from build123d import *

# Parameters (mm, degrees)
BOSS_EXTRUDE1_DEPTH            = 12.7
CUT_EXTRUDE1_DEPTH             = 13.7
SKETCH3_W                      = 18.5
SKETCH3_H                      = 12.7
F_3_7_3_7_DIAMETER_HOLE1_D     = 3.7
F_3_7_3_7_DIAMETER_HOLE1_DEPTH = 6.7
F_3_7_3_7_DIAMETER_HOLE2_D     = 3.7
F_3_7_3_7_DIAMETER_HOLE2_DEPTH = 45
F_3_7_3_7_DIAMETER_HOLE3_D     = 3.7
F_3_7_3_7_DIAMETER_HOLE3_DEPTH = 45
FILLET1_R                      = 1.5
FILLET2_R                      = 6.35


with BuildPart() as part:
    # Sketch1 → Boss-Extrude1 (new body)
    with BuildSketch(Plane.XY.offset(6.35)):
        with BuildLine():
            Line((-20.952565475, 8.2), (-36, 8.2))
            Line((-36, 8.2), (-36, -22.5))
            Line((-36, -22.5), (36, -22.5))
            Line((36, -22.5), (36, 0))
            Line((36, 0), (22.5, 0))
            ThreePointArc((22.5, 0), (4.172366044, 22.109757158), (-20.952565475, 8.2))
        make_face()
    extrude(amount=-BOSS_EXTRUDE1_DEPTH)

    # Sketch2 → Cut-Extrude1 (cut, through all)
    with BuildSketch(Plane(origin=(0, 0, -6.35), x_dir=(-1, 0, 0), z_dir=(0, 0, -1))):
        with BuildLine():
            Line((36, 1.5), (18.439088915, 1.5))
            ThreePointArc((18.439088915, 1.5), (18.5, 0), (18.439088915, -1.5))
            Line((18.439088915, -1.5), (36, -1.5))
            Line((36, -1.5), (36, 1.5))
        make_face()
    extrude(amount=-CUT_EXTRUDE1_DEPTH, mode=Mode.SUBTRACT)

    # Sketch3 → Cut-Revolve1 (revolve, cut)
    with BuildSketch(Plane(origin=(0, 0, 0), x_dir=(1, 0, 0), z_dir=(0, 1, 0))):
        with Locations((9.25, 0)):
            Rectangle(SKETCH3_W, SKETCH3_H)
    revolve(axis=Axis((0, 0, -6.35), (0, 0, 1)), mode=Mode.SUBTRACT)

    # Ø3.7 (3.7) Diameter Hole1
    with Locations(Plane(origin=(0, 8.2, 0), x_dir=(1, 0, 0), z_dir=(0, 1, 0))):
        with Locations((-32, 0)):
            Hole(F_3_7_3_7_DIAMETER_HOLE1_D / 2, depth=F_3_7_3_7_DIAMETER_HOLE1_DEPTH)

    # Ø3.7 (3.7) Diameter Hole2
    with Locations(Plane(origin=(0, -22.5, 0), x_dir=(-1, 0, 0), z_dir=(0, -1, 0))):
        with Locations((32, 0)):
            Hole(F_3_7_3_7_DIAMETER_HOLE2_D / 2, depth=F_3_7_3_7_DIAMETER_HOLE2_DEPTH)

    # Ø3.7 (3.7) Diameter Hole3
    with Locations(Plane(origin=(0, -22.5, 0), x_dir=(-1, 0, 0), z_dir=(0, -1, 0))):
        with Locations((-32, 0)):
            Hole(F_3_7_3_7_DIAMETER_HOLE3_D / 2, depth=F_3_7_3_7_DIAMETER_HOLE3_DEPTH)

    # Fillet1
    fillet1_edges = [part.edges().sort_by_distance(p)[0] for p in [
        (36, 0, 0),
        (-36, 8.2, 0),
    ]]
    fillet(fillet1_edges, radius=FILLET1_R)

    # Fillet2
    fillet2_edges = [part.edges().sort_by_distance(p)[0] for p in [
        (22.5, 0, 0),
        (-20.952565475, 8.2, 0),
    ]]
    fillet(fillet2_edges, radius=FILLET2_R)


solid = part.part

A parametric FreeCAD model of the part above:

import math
import FreeCAD as App
import Part
import Sketcher

V = App.Vector
Q = App.Units.Quantity


def edges_at(feature, points):
    """Names of the edges that pass closest to the given points."""
    edges = feature.Shape.Edges
    near = lambda p: min(range(len(edges)), key=lambda i: edges[i].distToShape(Part.Vertex(*p))[0])
    return sorted({f"Edge{near(p) + 1}" for p in points})


def add_polygon(sketch, points):
    """Adds a closed chain of lines whose ends are joined by coincident constraints."""
    first, n = sketch.GeometryCount, len(points)
    for a, b in zip(points, points[1:] + points[:1]):
        sketch.addGeometry(Part.LineSegment(App.Vector(*a, 0), App.Vector(*b, 0)), False)
    for i in range(n):
        sketch.addConstraint(Sketcher.Constraint("Coincident", first + i, 2, first + (i + 1) % n, 1))

doc = App.newDocument("Part")
params = doc.addObject("Spreadsheet::Sheet", "Params")
for row, (alias, value) in enumerate([
    ("sketch1_radius", "22.5 mm"),
    ("sketch1_width", "72 mm"),
    ("sketch1_width2", "13.5 mm"),
    ("sketch1_height", "30.7 mm"),
    ("sketch1_height2", "22.5 mm"),
    ("pad1_length", "12.7 mm"),
    ("sketch2_radius", "18.5 mm"),
    ("sketch2_height", "3 mm"),
    ("sketch3_width", "18.5 mm"),
    ("sketch3_height", "12.7 mm"),
    ("groove_angle", "360 deg"),
    ("sketch4_diameter", "3.7 mm"),
    ("hole_diameter", "3.7 mm"),
    ("hole_depth", "6.7 mm"),
    ("sketch5_diameter", "3.7 mm"),
    ("hole2_diameter", "3.7 mm"),
    ("hole2_depth", "45 mm"),
    ("sketch6_diameter", "3.7 mm"),
    ("hole3_diameter", "3.7 mm"),
    ("hole3_depth", "45 mm"),
    ("fillet_radius", "1.5 mm"),
    ("fillet2_radius", "6.35 mm"),
], start=1):
    params.set(f"A{row}", alias)
    params.set(f"B{row}", "=" + value)
    params.setAlias(f"B{row}", alias)

body = doc.addObject("PartDesign::Body", "Body")

# Sketch on XY plane
sketch1 = body.newObject("Sketcher::SketchObject", "Sketch")
sketch1.AttachmentSupport = (doc.getObject("XY_Plane"), [""])
sketch1.MapMode = "FlatFace"
sketch1.AttachmentOffset = App.Placement(V(0, 0, 6.35), App.Rotation())
sketch1.addGeometry(Part.LineSegment(V(-20.952565, 8.2, 0), V(-36, 8.2, 0)), False)
sketch1.addGeometry(Part.LineSegment(V(-36, 8.2, 0), V(-36, -22.5, 0)), False)
sketch1.addGeometry(Part.LineSegment(V(-36, -22.5, 0), V(36, -22.5, 0)), False)
sketch1.addGeometry(Part.LineSegment(V(36, -22.5, 0), V(36, 0, 0)), False)
sketch1.addGeometry(Part.LineSegment(V(36, 0, 0), V(22.5, 0, 0)), False)
sketch1.addGeometry(Part.ArcOfCircle(Part.Circle(V(0, 0, 0), V(0, 0, 1), 22.5), math.radians(0), math.radians(158.626603)), False)
sketch1.addConstraint(Sketcher.Constraint("Coincident", 0, 2, 1, 1))
sketch1.addConstraint(Sketcher.Constraint("Coincident", 1, 2, 2, 1))
sketch1.addConstraint(Sketcher.Constraint("Coincident", 2, 2, 3, 1))
sketch1.addConstraint(Sketcher.Constraint("Coincident", 3, 2, 4, 1))
sketch1.addConstraint(Sketcher.Constraint("Coincident", 4, 2, 5, 1))
sketch1.addConstraint(Sketcher.Constraint("Coincident", 5, 2, 0, 1))
sketch1.addConstraint(Sketcher.Constraint("Horizontal", 0))
sketch1.addConstraint(Sketcher.Constraint("Vertical", 1))
sketch1.addConstraint(Sketcher.Constraint("Horizontal", 2))
sketch1.addConstraint(Sketcher.Constraint("Vertical", 3))
sketch1.addConstraint(Sketcher.Constraint("Horizontal", 4))
sketch1.addConstraint(Sketcher.Constraint("Coincident", 5, 3, -1, 1))
sketch1.addConstraint(Sketcher.Constraint("PointOnObject", 3, 2, -1))
sketch1.addConstraint(Sketcher.Constraint("Radius", 5, Q("22.5 mm")))
sketch1.addConstraint(Sketcher.Constraint("DistanceX", 2, 1, 2, 2, Q("72 mm")))
sketch1.addConstraint(Sketcher.Constraint("DistanceX", 4, 2, 4, 1, Q("13.5 mm")))
sketch1.addConstraint(Sketcher.Constraint("DistanceY", 1, 2, 1, 1, Q("30.7 mm")))
sketch1.addConstraint(Sketcher.Constraint("DistanceY", 3, 1, 3, 2, Q("22.5 mm")))
sketch1.setExpression("Constraints[13]", "Params.sketch1_radius")
sketch1.setExpression("Constraints[14]", "Params.sketch1_width")
sketch1.setExpression("Constraints[15]", "Params.sketch1_width2")
sketch1.setExpression("Constraints[16]", "Params.sketch1_height")
sketch1.setExpression("Constraints[17]", "Params.sketch1_height2")
pad1 = body.newObject("PartDesign::Pad", "Pad")
pad1.Profile = sketch1
pad1.setExpression("Length", "Params.pad1_length")
pad1.Reversed = True

# Sketch on XY plane
sketch2 = body.newObject("Sketcher::SketchObject", "Sketch001")
sketch2.AttachmentSupport = (doc.getObject("XY_Plane"), [""])
sketch2.MapMode = "FlatFace"
sketch2.AttachmentOffset = App.Placement(V(0, 0, -6.35), App.Rotation())
sketch2.addGeometry(Part.LineSegment(V(-36, 1.5, 0), V(-18.439089, 1.5, 0)), False)
sketch2.addGeometry(Part.ArcOfCircle(Part.Circle(V(0, 0, 0), V(0, 0, 1), 18.5), math.radians(175.349291), math.radians(184.650709)), False)
sketch2.addGeometry(Part.LineSegment(V(-18.439089, -1.5, 0), V(-36, -1.5, 0)), False)
sketch2.addGeometry(Part.LineSegment(V(-36, -1.5, 0), V(-36, 1.5, 0)), False)
sketch2.addConstraint(Sketcher.Constraint("Coincident", 0, 2, 1, 1))
sketch2.addConstraint(Sketcher.Constraint("Coincident", 1, 2, 2, 1))
sketch2.addConstraint(Sketcher.Constraint("Coincident", 2, 2, 3, 1))
sketch2.addConstraint(Sketcher.Constraint("Coincident", 3, 2, 0, 1))
sketch2.addConstraint(Sketcher.Constraint("Horizontal", 0))
sketch2.addConstraint(Sketcher.Constraint("Horizontal", 2))
sketch2.addConstraint(Sketcher.Constraint("Vertical", 3))
sketch2.addConstraint(Sketcher.Constraint("Coincident", 1, 3, -1, 1))
sketch2.addConstraint(Sketcher.Constraint("Vertical", 0, 2, 1, 2))
sketch2.addConstraint(Sketcher.Constraint("Radius", 1, Q("18.5 mm")))
sketch2.addConstraint(Sketcher.Constraint("DistanceY", 3, 1, 3, 2, Q("3 mm")))
sketch2.addConstraint(Sketcher.Constraint("DistanceX", 2, 2, -1, 1, Q("36 mm")))
sketch2.setExpression("Constraints[9]", "Params.sketch2_radius")
sketch2.setExpression("Constraints[10]", "Params.sketch2_height")
pocket1 = body.newObject("PartDesign::Pocket", "Pocket")
pocket1.Profile = sketch2
pocket1.Type = "ThroughAll"
pocket1.Reversed = True

# Sketch on XZ plane
sketch3 = body.newObject("Sketcher::SketchObject", "Sketch002")
sketch3.AttachmentSupport = (doc.getObject("XZ_Plane"), [""])
sketch3.MapMode = "FlatFace"
add_polygon(sketch3, [(0, -6.35), (0, 6.35), (18.5, 6.35), (18.5, -6.35)])  # lines 0-3
sketch3.addConstraint(Sketcher.Constraint("Vertical", 0))
sketch3.addConstraint(Sketcher.Constraint("Horizontal", 1))
sketch3.addConstraint(Sketcher.Constraint("Vertical", 2))
sketch3.addConstraint(Sketcher.Constraint("Horizontal", 3))
sketch3.addConstraint(Sketcher.Constraint("Symmetric", 0, 2, 3, 2, -1, 1))
sketch3.addConstraint(Sketcher.Constraint("DistanceX", 1, 1, 1, 2, Q("18.5 mm")))
sketch3.addConstraint(Sketcher.Constraint("DistanceY", 0, 1, 0, 2, Q("12.7 mm")))
sketch3.setExpression("Constraints[9]", "Params.sketch3_width")
sketch3.setExpression("Constraints[10]", "Params.sketch3_height")
groove = body.newObject("PartDesign::Groove", "Groove")
groove.Profile = sketch3
groove.ReferenceAxis = (sketch3, ["V_Axis"])
groove.setExpression("Angle", "Params.groove_angle")

# Sketch on XZ plane
sketch4 = body.newObject("Sketcher::SketchObject", "Sketch003")
sketch4.AttachmentSupport = (doc.getObject("XZ_Plane"), [""])
sketch4.MapMode = "FlatFace"
sketch4.AttachmentOffset = App.Placement(V(0, 0, -8.2), App.Rotation())
sketch4.addGeometry(Part.Circle(V(-32, 0, 0), V(0, 0, 1), 1.85), False)
sketch4.addConstraint(Sketcher.Constraint("PointOnObject", 0, 3, -1))
sketch4.addConstraint(Sketcher.Constraint("Diameter", 0, Q("3.7 mm")))
sketch4.addConstraint(Sketcher.Constraint("DistanceX", 0, 3, -1, 1, Q("32 mm")))
sketch4.setExpression("Constraints[1]", "Params.sketch4_diameter")
doc.recompute()
hole = body.newObject("PartDesign::Hole", "Hole")
hole.Profile = sketch4
hole.ThreadType = "None"
hole.setExpression("Diameter", "Params.hole_diameter")
hole.DepthType = "Dimension"
hole.setExpression("Depth", "Params.hole_depth")
hole.DrillPoint = "Flat"
hole.Reversed = True

# Sketch on XZ plane
sketch5 = body.newObject("Sketcher::SketchObject", "Sketch004")
sketch5.AttachmentSupport = (doc.getObject("XZ_Plane"), [""])
sketch5.MapMode = "FlatFace"
sketch5.AttachmentOffset = App.Placement(V(0, 0, 22.5), App.Rotation())
sketch5.addGeometry(Part.Circle(V(-32, 0, 0), V(0, 0, 1), 1.85), False)
sketch5.addConstraint(Sketcher.Constraint("PointOnObject", 0, 3, -1))
sketch5.addConstraint(Sketcher.Constraint("Diameter", 0, Q("3.7 mm")))
sketch5.addConstraint(Sketcher.Constraint("DistanceX", 0, 3, -1, 1, Q("32 mm")))
sketch5.setExpression("Constraints[1]", "Params.sketch5_diameter")
doc.recompute()
hole2 = body.newObject("PartDesign::Hole", "Hole001")
hole2.Profile = sketch5
hole2.ThreadType = "None"
hole2.setExpression("Diameter", "Params.hole2_diameter")
hole2.DepthType = "Dimension"
hole2.setExpression("Depth", "Params.hole2_depth")
hole2.DrillPoint = "Flat"

# Sketch on XZ plane
sketch6 = body.newObject("Sketcher::SketchObject", "Sketch005")
sketch6.AttachmentSupport = (doc.getObject("XZ_Plane"), [""])
sketch6.MapMode = "FlatFace"
sketch6.AttachmentOffset = App.Placement(V(0, 0, 22.5), App.Rotation())
sketch6.addGeometry(Part.Circle(V(32, 0, 0), V(0, 0, 1), 1.85), False)
sketch6.addConstraint(Sketcher.Constraint("PointOnObject", 0, 3, -1))
sketch6.addConstraint(Sketcher.Constraint("Diameter", 0, Q("3.7 mm")))
sketch6.addConstraint(Sketcher.Constraint("DistanceX", -1, 1, 0, 3, Q("32 mm")))
sketch6.setExpression("Constraints[1]", "Params.sketch6_diameter")
doc.recompute()
hole3 = body.newObject("PartDesign::Hole", "Hole002")
hole3.Profile = sketch6
hole3.ThreadType = "None"
hole3.setExpression("Diameter", "Params.hole3_diameter")
hole3.DepthType = "Dimension"
hole3.setExpression("Depth", "Params.hole3_depth")
hole3.DrillPoint = "Flat"
doc.recompute()

fillet = body.newObject("PartDesign::Fillet", "Fillet")
fillet.Base = (hole3, edges_at(hole3, [(36, 0, 0), (-36, 8.2, 0)]))
fillet.setExpression("Radius", "Params.fillet_radius")
doc.recompute()

fillet2 = body.newObject("PartDesign::Fillet", "Fillet001")
fillet2.Base = (fillet, edges_at(fillet, [(22.5, 0, 0), (-20.953, 8.2, 0)]))
fillet2.setExpression("Radius", "Params.fillet2_radius")

doc.recompute()
